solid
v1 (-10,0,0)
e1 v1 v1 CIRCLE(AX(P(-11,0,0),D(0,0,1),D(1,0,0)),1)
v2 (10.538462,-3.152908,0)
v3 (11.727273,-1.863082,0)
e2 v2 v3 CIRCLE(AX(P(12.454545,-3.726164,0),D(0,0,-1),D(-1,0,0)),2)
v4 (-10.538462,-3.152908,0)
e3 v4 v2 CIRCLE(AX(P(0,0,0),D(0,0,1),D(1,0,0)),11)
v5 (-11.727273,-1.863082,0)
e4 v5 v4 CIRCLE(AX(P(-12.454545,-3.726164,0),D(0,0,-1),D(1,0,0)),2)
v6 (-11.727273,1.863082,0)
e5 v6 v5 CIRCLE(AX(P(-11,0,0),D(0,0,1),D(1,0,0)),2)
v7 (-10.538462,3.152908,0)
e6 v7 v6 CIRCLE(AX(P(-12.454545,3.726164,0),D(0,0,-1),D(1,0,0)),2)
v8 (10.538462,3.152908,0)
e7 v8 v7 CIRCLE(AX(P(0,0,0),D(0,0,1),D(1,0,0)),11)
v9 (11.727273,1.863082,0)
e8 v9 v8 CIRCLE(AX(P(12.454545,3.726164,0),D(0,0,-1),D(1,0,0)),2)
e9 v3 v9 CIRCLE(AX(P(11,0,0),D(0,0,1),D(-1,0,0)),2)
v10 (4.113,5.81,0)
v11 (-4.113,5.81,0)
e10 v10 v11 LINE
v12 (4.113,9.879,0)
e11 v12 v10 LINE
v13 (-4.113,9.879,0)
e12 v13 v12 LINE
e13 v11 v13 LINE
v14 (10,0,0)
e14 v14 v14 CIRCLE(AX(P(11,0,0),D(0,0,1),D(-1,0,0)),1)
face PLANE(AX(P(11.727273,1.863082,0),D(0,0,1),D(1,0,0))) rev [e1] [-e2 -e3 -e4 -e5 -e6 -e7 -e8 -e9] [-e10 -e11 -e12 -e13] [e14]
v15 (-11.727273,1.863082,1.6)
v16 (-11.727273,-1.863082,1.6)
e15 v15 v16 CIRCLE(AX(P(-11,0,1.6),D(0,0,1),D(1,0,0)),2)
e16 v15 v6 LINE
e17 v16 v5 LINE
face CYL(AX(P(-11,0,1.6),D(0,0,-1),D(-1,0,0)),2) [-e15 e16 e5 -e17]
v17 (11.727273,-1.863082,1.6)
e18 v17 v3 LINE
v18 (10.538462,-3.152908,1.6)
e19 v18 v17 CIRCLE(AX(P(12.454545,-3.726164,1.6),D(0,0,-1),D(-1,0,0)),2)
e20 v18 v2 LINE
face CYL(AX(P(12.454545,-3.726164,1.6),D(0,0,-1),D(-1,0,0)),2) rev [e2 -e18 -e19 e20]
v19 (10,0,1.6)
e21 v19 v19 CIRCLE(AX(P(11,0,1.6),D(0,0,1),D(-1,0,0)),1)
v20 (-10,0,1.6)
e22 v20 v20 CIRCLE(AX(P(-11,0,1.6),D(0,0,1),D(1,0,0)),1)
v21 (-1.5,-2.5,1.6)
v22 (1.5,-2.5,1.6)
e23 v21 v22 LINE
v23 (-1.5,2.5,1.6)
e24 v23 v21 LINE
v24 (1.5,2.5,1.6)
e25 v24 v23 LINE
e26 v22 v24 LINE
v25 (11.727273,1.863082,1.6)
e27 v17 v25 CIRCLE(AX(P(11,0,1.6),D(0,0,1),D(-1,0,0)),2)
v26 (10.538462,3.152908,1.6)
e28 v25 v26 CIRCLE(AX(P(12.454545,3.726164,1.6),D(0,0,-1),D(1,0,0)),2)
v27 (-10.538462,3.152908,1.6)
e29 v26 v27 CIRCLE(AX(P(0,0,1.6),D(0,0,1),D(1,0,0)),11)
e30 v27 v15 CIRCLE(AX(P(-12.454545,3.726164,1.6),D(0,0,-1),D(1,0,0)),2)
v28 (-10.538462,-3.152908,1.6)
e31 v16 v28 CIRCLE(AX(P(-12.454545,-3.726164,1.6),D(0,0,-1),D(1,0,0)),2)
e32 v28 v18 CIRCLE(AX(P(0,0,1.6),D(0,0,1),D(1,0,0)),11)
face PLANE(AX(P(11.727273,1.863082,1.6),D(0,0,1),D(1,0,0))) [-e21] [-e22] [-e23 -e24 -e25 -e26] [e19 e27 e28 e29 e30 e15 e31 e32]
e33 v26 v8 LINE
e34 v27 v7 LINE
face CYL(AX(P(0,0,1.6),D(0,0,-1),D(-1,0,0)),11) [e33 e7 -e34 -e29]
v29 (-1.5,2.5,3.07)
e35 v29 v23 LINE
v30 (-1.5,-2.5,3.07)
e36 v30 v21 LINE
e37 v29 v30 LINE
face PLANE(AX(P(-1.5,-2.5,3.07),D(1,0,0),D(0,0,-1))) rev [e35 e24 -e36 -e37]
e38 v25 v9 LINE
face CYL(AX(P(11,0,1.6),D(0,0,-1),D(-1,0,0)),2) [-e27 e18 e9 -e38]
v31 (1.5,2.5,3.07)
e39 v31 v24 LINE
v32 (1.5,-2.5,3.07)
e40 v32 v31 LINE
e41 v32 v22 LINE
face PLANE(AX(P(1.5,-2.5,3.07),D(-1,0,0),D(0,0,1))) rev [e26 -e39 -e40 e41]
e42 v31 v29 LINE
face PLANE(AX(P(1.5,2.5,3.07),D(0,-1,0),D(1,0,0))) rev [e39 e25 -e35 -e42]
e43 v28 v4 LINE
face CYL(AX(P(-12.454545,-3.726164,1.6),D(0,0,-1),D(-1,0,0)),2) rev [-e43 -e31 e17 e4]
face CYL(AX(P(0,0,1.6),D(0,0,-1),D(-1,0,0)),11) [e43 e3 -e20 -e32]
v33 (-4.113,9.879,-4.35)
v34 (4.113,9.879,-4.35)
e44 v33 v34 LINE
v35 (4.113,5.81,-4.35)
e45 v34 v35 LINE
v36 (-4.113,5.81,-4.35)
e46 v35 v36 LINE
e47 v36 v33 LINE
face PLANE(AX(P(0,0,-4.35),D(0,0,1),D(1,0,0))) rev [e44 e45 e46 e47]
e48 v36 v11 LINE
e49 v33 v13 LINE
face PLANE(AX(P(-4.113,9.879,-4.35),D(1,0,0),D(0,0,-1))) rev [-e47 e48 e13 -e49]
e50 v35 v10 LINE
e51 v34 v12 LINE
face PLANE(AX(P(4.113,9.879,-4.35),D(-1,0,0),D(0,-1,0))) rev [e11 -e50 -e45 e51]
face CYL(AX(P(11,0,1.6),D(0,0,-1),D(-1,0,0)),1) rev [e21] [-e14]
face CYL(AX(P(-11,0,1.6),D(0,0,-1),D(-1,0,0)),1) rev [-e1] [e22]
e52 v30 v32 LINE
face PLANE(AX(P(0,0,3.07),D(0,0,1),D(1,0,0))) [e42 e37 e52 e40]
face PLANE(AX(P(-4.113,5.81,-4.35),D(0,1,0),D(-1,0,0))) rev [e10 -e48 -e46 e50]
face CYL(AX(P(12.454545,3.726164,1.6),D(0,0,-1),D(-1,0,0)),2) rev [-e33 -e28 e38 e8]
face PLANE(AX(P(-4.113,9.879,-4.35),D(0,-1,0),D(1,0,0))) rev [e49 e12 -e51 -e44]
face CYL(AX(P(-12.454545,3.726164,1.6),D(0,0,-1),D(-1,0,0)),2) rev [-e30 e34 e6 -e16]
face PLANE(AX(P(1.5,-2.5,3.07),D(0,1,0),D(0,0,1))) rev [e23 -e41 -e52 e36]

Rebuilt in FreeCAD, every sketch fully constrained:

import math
import FreeCAD as App
import Part
import Sketcher

V = App.Vector
Q = App.Units.Quantity

doc = App.newDocument("Part")
params = doc.addObject("Spreadsheet::Sheet", "Params")
for row, (alias, value) in enumerate([
    ("sketch1_diameter", "2 mm"),
    ("sketch1_radius", "11 mm"),
    ("sketch1_radius2", "2 mm"),
    ("pad1_length", "1.6 mm"),
    ("sketch2_width", "3 mm"),
    ("sketch2_height", "5 mm"),
    ("pad2_length", "1.47 mm"),
    ("pad3_length", "4.35 mm"),
], start=1):
    params.set(f"A{row}", alias)
    params.set(f"B{row}", "=" + value)
    params.setAlias(f"B{row}", alias)

body = doc.addObject("PartDesign::Body", "Body")

sketch1 = body.newObject("Sketcher::SketchObject", "Sketch")
sketch1.AttachmentSupport = (doc.getObject("XY_Plane"), [""])
sketch1.MapMode = "FlatFace"
sketch1.addGeometry([
    Part.ArcOfCircle(Part.Circle(V(0, 0, 0), V(0, 0, 1), 11), math.radians(-163), math.radians(-17)),
    Part.ArcOfCircle(Part.Circle(V(12.5, -3.7, 0), V(0, 0, 1), 2), math.radians(111), math.radians(163)),
    Part.ArcOfCircle(Part.Circle(V(11, 0, 0), V(0, 0, 1), 2), math.radians(-69), math.radians(69)),
    Part.ArcOfCircle(Part.Circle(V(12.5, 3.7, 0), V(0, 0, 1), 2), math.radians(-163), math.radians(-111)),
    Part.ArcOfCircle(Part.Circle(V(0, 0, 0), V(0, 0, 1), 11), math.radians(17), math.radians(163)),
    Part.ArcOfCircle(Part.Circle(V(-12.5, 3.7, 0), V(0, 0, 1), 2), math.radians(-69), math.radians(-17)),
    Part.ArcOfCircle(Part.Circle(V(-11, 0, 0), V(0, 0, 1), 2), math.radians(111), math.radians(249)),
    Part.ArcOfCircle(Part.Circle(V(-12.5, -3.7, 0), V(0, 0, 1), 2), math.radians(17), math.radians(69)),
    Part.Circle(V(-11, 0, 0), V(0, 0, 1), 1),
    Part.Circle(V(11, 0, 0), V(0, 0, 1), 1),
], False)
sketch1.addConstraint([
    Sketcher.Constraint("Tangent", 0, 2, 1, 2),
    Sketcher.Constraint("Tangent", 1, 1, 2, 1),
    Sketcher.Constraint("Tangent", 2, 2, 3, 2),
    Sketcher.Constraint("Tangent", 3, 1, 4, 1),
    Sketcher.Constraint("Tangent", 4, 2, 5, 2),
    Sketcher.Constraint("Tangent", 5, 1, 6, 1),
    Sketcher.Constraint("Tangent", 6, 2, 7, 2),
    Sketcher.Constraint("Tangent", 7, 1, 0, 1),
    Sketcher.Constraint("Coincident", 0, 3, -1, 1),
    Sketcher.Constraint("Coincident", 4, 3, -1, 1),
    Sketcher.Constraint("Coincident", 8, 3, 6, 3),
    Sketcher.Constraint("Coincident", 9, 3, 2, 3),
    Sketcher.Constraint("Equal", 1, 2),
    Sketcher.Constraint("Equal", 2, 3),
    Sketcher.Constraint("Equal", 0, 4),
    Sketcher.Constraint("Equal", 3, 5),
    Sketcher.Constraint("Equal", 5, 6),
    Sketcher.Constraint("Equal", 6, 7),
    Sketcher.Constraint("Equal", 8, 9),
    Sketcher.Constraint("Symmetric", 2, 3, 6, 3, -1, 1),
    Sketcher.Constraint("PointOnObject", 2, 3, -1),
    Sketcher.Constraint("Diameter", 8, Q("2 mm")),
    Sketcher.Constraint("Radius", 0, Q("11 mm")),
    Sketcher.Constraint("Radius", 1, Q("2 mm")),
    Sketcher.Constraint("DistanceX", -1, 1, 2, 3, Q("11 mm")),
])
sketch1.setExpression("Constraints[21]", "Params.sketch1_diameter")
sketch1.setExpression("Constraints[22]", "Params.sketch1_radius")
sketch1.setExpression("Constraints[23]", "Params.sketch1_radius2")
pad1 = body.newObject("PartDesign::Pad", "Pad")
pad1.Profile = sketch1
pad1.setExpression("Length", "Params.pad1_length")

sketch2 = body.newObject("Sketcher::SketchObject", "Sketch001")
sketch2.AttachmentSupport = (doc.getObject("XY_Plane"), [""])
sketch2.MapMode = "FlatFace"
sketch2.AttachmentOffset = App.Placement(V(0, 0, 1.6), App.Rotation())
sketch2.addGeometry([
    Part.LineSegment(V(-1.5, 2.5, 0), V(-1.5, -2.5, 0)),
    Part.LineSegment(V(-1.5, -2.5, 0), V(1.5, -2.5, 0)),
    Part.LineSegment(V(1.5, -2.5, 0), V(1.5, 2.5, 0)),
    Part.LineSegment(V(1.5, 2.5, 0), V(-1.5, 2.5, 0)),
], False)
sketch2.addConstraint([
    Sketcher.Constraint("Coincident", 0, 2, 1, 1),
    Sketcher.Constraint("Coincident", 1, 2, 2, 1),
    Sketcher.Constraint("Coincident", 2, 2, 3, 1),
    Sketcher.Constraint("Coincident", 3, 2, 0, 1),
    Sketcher.Constraint("Vertical", 0),
    Sketcher.Constraint("Horizontal", 1),
    Sketcher.Constraint("Vertical", 2),
    Sketcher.Constraint("Horizontal", 3),
    Sketcher.Constraint("Symmetric", 0, 2, 2, 2, -1, 1),
    Sketcher.Constraint("DistanceX", 1, 1, 1, 2, Q("3 mm")),
    Sketcher.Constraint("DistanceY", 0, 2, 0, 1, Q("5 mm")),
])
sketch2.setExpression("Constraints[9]", "Params.sketch2_width")
sketch2.setExpression("Constraints[10]", "Params.sketch2_height")
pad2 = body.newObject("PartDesign::Pad", "Pad001")
pad2.Profile = sketch2
pad2.setExpression("Length", "Params.pad2_length")

sketch3 = body.newObject("Sketcher::SketchObject", "Sketch002")
sketch3.AttachmentSupport = (doc.getObject("XY_Plane"), [""])
sketch3.MapMode = "FlatFace"
sketch3.addGeometry([
    Part.LineSegment(V(4.1, 9.9, 0), V(4.1, 5.8, 0)),
    Part.LineSegment(V(4.1, 5.8, 0), V(-4.1, 5.8, 0)),
    Part.LineSegment(V(-4.1, 5.8, 0), V(-4.1, 9.9, 0)),
    Part.LineSegment(V(-4.1, 9.9, 0), V(4.1, 9.9, 0)),
], False)
sketch3.addConstraint([
    Sketcher.Constraint("Coincident", 0, 2, 1, 1),
    Sketcher.Constraint("Coincident", 1, 2, 2, 1),
    Sketcher.Constraint("Coincident", 2, 2, 3, 1),
    Sketcher.Constraint("Coincident", 3, 2, 0, 1),
    Sketcher.Constraint("Vertical", 0),
    Sketcher.Constraint("Horizontal", 1),
    Sketcher.Constraint("Vertical", 2),
    Sketcher.Constraint("Horizontal", 3),
    Sketcher.Constraint("DistanceX", 1, 2, 1, 1, Q("8.226 mm")),
    Sketcher.Constraint("DistanceY", 0, 2, 0, 1, Q("4.069 mm")),
    Sketcher.Constraint("DistanceY", -1, 1, 0, 2, Q("5.81 mm")),
    Sketcher.Constraint("DistanceX", -1, 1, 0, 2, Q("4.113 mm")),
])
pad3 = body.newObject("PartDesign::Pad", "Pad002")
pad3.Profile = sketch3
pad3.setExpression("Length", "Params.pad3_length")
pad3.Reversed = True

doc.recompute()
